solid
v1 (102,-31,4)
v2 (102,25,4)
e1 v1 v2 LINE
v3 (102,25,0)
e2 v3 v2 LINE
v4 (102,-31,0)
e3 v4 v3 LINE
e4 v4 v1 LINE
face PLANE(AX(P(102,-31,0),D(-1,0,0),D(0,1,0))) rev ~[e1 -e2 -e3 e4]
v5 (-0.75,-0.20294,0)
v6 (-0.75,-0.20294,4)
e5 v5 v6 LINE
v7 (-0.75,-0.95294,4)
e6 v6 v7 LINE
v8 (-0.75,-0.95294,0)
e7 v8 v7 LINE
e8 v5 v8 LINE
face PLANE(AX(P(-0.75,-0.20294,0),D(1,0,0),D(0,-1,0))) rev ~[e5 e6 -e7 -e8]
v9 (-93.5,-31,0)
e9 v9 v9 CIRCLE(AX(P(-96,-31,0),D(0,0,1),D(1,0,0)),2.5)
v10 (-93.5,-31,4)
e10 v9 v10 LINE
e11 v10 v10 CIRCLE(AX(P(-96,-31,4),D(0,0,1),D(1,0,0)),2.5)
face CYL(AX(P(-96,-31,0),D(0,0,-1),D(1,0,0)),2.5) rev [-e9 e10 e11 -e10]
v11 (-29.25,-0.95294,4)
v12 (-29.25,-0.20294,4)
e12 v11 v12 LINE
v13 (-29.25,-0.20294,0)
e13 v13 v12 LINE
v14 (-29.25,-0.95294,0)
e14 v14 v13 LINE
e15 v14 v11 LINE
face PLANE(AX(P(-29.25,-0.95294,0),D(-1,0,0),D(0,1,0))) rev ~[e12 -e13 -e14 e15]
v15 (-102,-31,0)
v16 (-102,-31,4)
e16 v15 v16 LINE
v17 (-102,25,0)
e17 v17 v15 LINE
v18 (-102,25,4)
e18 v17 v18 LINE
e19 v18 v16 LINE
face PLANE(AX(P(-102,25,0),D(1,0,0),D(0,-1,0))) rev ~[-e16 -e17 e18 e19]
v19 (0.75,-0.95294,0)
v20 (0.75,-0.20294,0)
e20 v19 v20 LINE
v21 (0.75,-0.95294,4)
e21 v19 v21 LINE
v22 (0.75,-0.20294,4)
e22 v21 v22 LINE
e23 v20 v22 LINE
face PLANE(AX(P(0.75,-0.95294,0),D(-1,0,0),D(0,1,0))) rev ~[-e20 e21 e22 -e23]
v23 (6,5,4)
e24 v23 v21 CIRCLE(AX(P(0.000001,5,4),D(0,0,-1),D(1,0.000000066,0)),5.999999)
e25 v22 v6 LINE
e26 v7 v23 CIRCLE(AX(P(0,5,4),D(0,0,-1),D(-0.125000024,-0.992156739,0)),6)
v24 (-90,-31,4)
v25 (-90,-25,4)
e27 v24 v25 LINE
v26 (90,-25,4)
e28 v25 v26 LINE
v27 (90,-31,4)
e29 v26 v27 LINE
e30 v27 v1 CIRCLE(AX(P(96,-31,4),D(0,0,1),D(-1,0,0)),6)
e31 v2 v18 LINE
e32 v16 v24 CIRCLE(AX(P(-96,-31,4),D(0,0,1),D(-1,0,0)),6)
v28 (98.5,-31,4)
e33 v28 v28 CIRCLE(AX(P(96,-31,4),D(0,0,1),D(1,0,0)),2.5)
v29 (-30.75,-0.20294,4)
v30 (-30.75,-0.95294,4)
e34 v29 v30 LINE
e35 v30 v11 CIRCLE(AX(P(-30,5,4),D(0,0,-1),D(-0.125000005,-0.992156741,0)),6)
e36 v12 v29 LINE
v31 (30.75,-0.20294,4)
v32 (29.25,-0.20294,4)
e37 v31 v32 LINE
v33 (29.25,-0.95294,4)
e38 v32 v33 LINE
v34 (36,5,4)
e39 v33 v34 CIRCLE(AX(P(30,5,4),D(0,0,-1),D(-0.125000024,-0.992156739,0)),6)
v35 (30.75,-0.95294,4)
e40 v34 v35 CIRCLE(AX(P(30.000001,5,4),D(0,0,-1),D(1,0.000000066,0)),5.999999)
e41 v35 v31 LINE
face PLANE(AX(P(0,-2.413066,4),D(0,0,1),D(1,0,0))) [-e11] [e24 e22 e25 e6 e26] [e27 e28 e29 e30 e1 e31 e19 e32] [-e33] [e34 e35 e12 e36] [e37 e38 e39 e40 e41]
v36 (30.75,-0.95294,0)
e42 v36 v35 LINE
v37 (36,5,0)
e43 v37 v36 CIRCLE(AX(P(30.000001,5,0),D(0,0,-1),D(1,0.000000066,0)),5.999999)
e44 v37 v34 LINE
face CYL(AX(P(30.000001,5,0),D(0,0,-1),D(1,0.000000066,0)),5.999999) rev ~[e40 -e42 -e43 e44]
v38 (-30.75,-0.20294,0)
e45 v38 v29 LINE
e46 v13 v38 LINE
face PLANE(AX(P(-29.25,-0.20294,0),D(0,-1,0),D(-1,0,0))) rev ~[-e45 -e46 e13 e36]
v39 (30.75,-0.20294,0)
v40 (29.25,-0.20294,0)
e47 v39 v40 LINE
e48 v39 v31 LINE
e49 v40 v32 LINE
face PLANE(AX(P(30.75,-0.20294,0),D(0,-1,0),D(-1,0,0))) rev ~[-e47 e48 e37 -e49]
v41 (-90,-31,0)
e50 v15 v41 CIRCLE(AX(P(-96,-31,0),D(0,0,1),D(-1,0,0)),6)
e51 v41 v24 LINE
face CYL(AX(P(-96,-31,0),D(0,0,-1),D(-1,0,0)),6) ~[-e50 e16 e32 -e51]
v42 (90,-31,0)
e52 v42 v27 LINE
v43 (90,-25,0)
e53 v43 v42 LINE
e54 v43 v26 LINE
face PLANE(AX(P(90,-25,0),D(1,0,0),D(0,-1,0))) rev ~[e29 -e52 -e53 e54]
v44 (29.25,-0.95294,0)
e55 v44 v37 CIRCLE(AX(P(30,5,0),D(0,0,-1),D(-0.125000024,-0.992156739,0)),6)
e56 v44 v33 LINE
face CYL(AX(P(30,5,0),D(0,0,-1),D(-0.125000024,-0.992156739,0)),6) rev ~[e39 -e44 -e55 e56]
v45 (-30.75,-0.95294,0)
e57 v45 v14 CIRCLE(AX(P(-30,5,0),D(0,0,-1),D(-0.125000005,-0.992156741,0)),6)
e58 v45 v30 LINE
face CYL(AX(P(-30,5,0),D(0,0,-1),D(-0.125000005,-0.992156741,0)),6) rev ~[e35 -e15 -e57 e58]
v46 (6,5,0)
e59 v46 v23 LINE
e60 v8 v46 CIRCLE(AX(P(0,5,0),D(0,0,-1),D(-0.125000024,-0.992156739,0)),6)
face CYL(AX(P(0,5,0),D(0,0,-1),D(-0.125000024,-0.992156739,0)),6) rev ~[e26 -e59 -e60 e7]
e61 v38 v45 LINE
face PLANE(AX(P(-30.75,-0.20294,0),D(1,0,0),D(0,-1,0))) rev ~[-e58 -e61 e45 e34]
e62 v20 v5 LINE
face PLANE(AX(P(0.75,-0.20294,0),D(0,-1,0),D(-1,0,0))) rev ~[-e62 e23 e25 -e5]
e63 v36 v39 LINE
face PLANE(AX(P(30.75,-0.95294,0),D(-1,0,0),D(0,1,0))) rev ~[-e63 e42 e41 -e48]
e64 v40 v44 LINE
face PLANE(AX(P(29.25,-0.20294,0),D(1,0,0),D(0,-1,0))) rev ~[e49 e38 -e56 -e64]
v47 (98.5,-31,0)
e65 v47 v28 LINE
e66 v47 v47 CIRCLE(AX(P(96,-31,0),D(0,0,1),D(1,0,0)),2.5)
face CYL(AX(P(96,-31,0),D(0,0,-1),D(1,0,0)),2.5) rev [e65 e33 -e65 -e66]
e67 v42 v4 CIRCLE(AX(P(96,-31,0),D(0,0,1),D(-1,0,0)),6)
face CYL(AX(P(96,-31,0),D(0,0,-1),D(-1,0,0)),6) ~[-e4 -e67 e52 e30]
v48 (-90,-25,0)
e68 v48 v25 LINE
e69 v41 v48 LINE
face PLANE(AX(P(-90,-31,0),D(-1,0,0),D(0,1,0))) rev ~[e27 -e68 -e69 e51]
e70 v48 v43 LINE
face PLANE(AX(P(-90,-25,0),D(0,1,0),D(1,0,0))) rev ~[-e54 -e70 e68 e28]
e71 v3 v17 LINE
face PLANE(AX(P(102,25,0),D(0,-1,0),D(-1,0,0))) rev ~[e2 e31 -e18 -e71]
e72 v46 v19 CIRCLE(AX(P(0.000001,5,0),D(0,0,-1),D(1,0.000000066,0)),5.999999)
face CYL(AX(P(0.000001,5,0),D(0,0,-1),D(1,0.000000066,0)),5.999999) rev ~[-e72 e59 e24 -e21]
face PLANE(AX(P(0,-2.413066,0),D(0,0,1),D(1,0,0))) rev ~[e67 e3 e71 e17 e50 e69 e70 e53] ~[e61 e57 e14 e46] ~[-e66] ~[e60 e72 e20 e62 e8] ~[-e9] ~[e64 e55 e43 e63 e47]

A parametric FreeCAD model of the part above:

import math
import FreeCAD as App
import Part
import Sketcher
Q = App.Units.Quantity

doc = App.newDocument("Part")
params = doc.addObject("Spreadsheet::Sheet", "Params")
for row, (alias, value) in enumerate([
    ("sketch1_diameter", "5 mm"),
    ("sketch1_radius", "6 mm"),
    ("sketch1_width", "204 mm"),
    ("sketch1_height", "56 mm"),
    ("sketch1_height2", "6 mm"),
    ("pad1_length", "4 mm"),
], start=1):
    params.set(f"A{row}", alias)
    params.set(f"B{row}", "=" + value)
    params.setAlias(f"B{row}", alias)

body = doc.addObject("PartDesign::Body", "Body")

# Sketch on XY plane
sketch1 = body.newObject("Sketcher::SketchObject", "Sketch")
sketch1.AttachmentSupport = (doc.getObject("XY_Plane"), [""])
sketch1.MapMode = "FlatFace"
sketch1.addGeometry([
    Part.LineSegment(App.Vector(102, 25, 0), App.Vector(-102, 25, 0)),  # 0
    Part.LineSegment(App.Vector(-102, 25, 0), App.Vector(-102, -31, 0)),  # 1
    Part.ArcOfCircle(Part.Circle(App.Vector(-96, -31, 0), App.Vector(0, 0, 1), 6), math.radians(180), math.radians(360)),  # 2
    Part.LineSegment(App.Vector(-90, -31, 0), App.Vector(-90, -25, 0)),  # 3
    Part.LineSegment(App.Vector(-90, -25, 0), App.Vector(90, -25, 0)),  # 4
    Part.LineSegment(App.Vector(90, -25, 0), App.Vector(90, -31, 0)),  # 5
    Part.ArcOfCircle(Part.Circle(App.Vector(96, -31, 0), App.Vector(0, 0, 1), 6), math.radians(180), math.radians(360)),  # 6
    Part.LineSegment(App.Vector(102, -31, 0), App.Vector(102, 25, 0)),  # 7
    Part.Circle(App.Vector(-96, -31, 0), App.Vector(0, 0, 1), 2.5),  # 8
    Part.Circle(App.Vector(96, -31, 0), App.Vector(0, 0, 1), 2.5),  # 9
    Part.LineSegment(App.Vector(-30.8, -0.2, 0), App.Vector(-30.8, -1, 0)),  # 10
    Part.ArcOfCircle(Part.Circle(App.Vector(-30, 5, 0), App.Vector(0, 0, 1), 6), math.radians(-83), math.radians(263)),  # 11
    Part.LineSegment(App.Vector(-29.2, -1, 0), App.Vector(-29.2, -0.2, 0)),  # 12
    Part.LineSegment(App.Vector(-29.2, -0.2, 0), App.Vector(-30.8, -0.2, 0)),  # 13
    Part.ArcOfCircle(Part.Circle(App.Vector(0, 5, 0), App.Vector(0, 0, 1), 6), math.radians(-83), math.radians(0)),  # 14
    Part.LineSegment(App.Vector(0.8, -1, 0), App.Vector(0.8, -0.2, 0)),  # 15
    Part.LineSegment(App.Vector(0.8, -0.2, 0), App.Vector(-0.8, -0.2, 0)),  # 16
    Part.LineSegment(App.Vector(-0.8, -0.2, 0), App.Vector(-0.8, -1, 0)),  # 17
    Part.ArcOfCircle(Part.Circle(App.Vector(0, 5, 0), App.Vector(0, 0, 1), 6), math.radians(0), math.radians(263)),  # 18
    Part.ArcOfCircle(Part.Circle(App.Vector(30, 5, 0), App.Vector(0, 0, 1), 6), math.radians(0), math.radians(263)),  # 19
    Part.ArcOfCircle(Part.Circle(App.Vector(30, 5, 0), App.Vector(0, 0, 1), 6), math.radians(-83), math.radians(0)),  # 20
    Part.LineSegment(App.Vector(30.8, -1, 0), App.Vector(30.8, -0.2, 0)),  # 21
    Part.LineSegment(App.Vector(30.8, -0.2, 0), App.Vector(29.2, -0.2, 0)),  # 22
    Part.LineSegment(App.Vector(29.2, -0.2, 0), App.Vector(29.2, -1, 0)),  # 23
], False)
sketch1.addConstraint([
    Sketcher.Constraint("Coincident", 0, 2, 1, 1),
    Sketcher.Constraint("Tangent", 1, 2, 2, 1),
    Sketcher.Constraint("Tangent", 2, 2, 3, 1),
    Sketcher.Constraint("Coincident", 3, 2, 4, 1),
    Sketcher.Constraint("Coincident", 4, 2, 5, 1),
    Sketcher.Constraint("Tangent", 5, 2, 6, 1),
    Sketcher.Constraint("Tangent", 6, 2, 7, 1),
    Sketcher.Constraint("Coincident", 7, 2, 0, 1),
    Sketcher.Constraint("Coincident", 10, 2, 11, 2),
    Sketcher.Constraint("Coincident", 11, 1, 12, 1),
    Sketcher.Constraint("Coincident", 12, 2, 13, 1),
    Sketcher.Constraint("Coincident", 13, 2, 10, 1),
    Sketcher.Constraint("Coincident", 14, 1, 15, 1),
    Sketcher.Constraint("Coincident", 15, 2, 16, 1),
    Sketcher.Constraint("Coincident", 16, 2, 17, 1),
    Sketcher.Constraint("Coincident", 17, 2, 18, 2),
    Sketcher.Constraint("Tangent", 18, 1, 14, 2),
    Sketcher.Constraint("Tangent", 19, 1, 20, 2),
    Sketcher.Constraint("Coincident", 20, 1, 21, 1),
    Sketcher.Constraint("Coincident", 21, 2, 22, 1),
    Sketcher.Constraint("Coincident", 22, 2, 23, 1),
    Sketcher.Constraint("Coincident", 23, 2, 19, 2),
    Sketcher.Constraint("Horizontal", 0),
    Sketcher.Constraint("Vertical", 1),
    Sketcher.Constraint("Vertical", 3),
    Sketcher.Constraint("Horizontal", 4),
    Sketcher.Constraint("Vertical", 5),
    Sketcher.Constraint("Vertical", 7),
    Sketcher.Constraint("Vertical", 10),
    Sketcher.Constraint("Vertical", 12),
    Sketcher.Constraint("Horizontal", 13),
    Sketcher.Constraint("Vertical", 15),
    Sketcher.Constraint("Horizontal", 16),
    Sketcher.Constraint("Vertical", 17),
    Sketcher.Constraint("Vertical", 21),
    Sketcher.Constraint("Horizontal", 22),
    Sketcher.Constraint("Vertical", 23),
    Sketcher.Constraint("Coincident", 8, 3, 2, 3),
    Sketcher.Constraint("Coincident", 9, 3, 6, 3),
    Sketcher.Constraint("Equal", 2, 6),
    Sketcher.Constraint("Equal", 8, 9),
    Sketcher.Constraint("Equal", 6, 11),
    Sketcher.Constraint("Equal", 11, 14),
    Sketcher.Constraint("Equal", 14, 18),
    Sketcher.Constraint("Equal", 18, 19),
    Sketcher.Constraint("Equal", 19, 20),
    Sketcher.Constraint("Symmetric", 2, 3, 6, 3, -2),
    Sketcher.Constraint("Symmetric", 11, 3, 19, 3, -2),
    Sketcher.Constraint("Symmetric", 14, 1, 17, 2, -2),
    Sketcher.Constraint("Symmetric", 13, 2, 21, 2, -2),
    Sketcher.Constraint("Horizontal", 11, 3, 14, 3),
    Sketcher.Constraint("Horizontal", 10, 2, 11, 1),
    Sketcher.Constraint("Horizontal", 11, 1, 14, 1),
    Sketcher.Constraint("Horizontal", 13, 2, 15, 2),
    Sketcher.Constraint("Horizontal", 20, 3, 18, 1),
    Sketcher.Constraint("Horizontal", 18, 1, 19, 1),
    Sketcher.Constraint("Horizontal", 20, 1, 23, 2),
    Sketcher.Constraint("Diameter", 8, Q("5 mm")),
    Sketcher.Constraint("Radius", 2, Q("6 mm")),
    Sketcher.Constraint("DistanceX", 0, 2, 0, 1, Q("204 mm")),
    Sketcher.Constraint("DistanceY", 1, 2, 1, 1, Q("56 mm")),
    Sketcher.Constraint("DistanceY", 3, 1, 3, 2, Q("6 mm")),
    Sketcher.Constraint("DistanceX", 13, 2, 13, 1, Q("1.5 mm")),
    Sketcher.Constraint("DistanceY", 2, 3, -1, 1, Q("31 mm")),
    Sketcher.Constraint("DistanceX", 11, 3, -1, 1, Q("30 mm")),
    Sketcher.Constraint("DistanceY", -1, 1, 11, 3, Q("5 mm")),
    Sketcher.Constraint("DistanceY", 10, 2, 10, 1, Q("0.75 mm")),
])
sketch1.setExpression("Constraints[57]", "Params.sketch1_diameter")
sketch1.setExpression("Constraints[58]", "Params.sketch1_radius")
sketch1.setExpression("Constraints[59]", "Params.sketch1_width")
sketch1.setExpression("Constraints[60]", "Params.sketch1_height")
sketch1.setExpression("Constraints[61]", "Params.sketch1_height2")
pad1 = body.newObject("PartDesign::Pad", "Pad")
pad1.Profile = sketch1
pad1.setExpression("Length", "Params.pad1_length")

doc.recompute()
